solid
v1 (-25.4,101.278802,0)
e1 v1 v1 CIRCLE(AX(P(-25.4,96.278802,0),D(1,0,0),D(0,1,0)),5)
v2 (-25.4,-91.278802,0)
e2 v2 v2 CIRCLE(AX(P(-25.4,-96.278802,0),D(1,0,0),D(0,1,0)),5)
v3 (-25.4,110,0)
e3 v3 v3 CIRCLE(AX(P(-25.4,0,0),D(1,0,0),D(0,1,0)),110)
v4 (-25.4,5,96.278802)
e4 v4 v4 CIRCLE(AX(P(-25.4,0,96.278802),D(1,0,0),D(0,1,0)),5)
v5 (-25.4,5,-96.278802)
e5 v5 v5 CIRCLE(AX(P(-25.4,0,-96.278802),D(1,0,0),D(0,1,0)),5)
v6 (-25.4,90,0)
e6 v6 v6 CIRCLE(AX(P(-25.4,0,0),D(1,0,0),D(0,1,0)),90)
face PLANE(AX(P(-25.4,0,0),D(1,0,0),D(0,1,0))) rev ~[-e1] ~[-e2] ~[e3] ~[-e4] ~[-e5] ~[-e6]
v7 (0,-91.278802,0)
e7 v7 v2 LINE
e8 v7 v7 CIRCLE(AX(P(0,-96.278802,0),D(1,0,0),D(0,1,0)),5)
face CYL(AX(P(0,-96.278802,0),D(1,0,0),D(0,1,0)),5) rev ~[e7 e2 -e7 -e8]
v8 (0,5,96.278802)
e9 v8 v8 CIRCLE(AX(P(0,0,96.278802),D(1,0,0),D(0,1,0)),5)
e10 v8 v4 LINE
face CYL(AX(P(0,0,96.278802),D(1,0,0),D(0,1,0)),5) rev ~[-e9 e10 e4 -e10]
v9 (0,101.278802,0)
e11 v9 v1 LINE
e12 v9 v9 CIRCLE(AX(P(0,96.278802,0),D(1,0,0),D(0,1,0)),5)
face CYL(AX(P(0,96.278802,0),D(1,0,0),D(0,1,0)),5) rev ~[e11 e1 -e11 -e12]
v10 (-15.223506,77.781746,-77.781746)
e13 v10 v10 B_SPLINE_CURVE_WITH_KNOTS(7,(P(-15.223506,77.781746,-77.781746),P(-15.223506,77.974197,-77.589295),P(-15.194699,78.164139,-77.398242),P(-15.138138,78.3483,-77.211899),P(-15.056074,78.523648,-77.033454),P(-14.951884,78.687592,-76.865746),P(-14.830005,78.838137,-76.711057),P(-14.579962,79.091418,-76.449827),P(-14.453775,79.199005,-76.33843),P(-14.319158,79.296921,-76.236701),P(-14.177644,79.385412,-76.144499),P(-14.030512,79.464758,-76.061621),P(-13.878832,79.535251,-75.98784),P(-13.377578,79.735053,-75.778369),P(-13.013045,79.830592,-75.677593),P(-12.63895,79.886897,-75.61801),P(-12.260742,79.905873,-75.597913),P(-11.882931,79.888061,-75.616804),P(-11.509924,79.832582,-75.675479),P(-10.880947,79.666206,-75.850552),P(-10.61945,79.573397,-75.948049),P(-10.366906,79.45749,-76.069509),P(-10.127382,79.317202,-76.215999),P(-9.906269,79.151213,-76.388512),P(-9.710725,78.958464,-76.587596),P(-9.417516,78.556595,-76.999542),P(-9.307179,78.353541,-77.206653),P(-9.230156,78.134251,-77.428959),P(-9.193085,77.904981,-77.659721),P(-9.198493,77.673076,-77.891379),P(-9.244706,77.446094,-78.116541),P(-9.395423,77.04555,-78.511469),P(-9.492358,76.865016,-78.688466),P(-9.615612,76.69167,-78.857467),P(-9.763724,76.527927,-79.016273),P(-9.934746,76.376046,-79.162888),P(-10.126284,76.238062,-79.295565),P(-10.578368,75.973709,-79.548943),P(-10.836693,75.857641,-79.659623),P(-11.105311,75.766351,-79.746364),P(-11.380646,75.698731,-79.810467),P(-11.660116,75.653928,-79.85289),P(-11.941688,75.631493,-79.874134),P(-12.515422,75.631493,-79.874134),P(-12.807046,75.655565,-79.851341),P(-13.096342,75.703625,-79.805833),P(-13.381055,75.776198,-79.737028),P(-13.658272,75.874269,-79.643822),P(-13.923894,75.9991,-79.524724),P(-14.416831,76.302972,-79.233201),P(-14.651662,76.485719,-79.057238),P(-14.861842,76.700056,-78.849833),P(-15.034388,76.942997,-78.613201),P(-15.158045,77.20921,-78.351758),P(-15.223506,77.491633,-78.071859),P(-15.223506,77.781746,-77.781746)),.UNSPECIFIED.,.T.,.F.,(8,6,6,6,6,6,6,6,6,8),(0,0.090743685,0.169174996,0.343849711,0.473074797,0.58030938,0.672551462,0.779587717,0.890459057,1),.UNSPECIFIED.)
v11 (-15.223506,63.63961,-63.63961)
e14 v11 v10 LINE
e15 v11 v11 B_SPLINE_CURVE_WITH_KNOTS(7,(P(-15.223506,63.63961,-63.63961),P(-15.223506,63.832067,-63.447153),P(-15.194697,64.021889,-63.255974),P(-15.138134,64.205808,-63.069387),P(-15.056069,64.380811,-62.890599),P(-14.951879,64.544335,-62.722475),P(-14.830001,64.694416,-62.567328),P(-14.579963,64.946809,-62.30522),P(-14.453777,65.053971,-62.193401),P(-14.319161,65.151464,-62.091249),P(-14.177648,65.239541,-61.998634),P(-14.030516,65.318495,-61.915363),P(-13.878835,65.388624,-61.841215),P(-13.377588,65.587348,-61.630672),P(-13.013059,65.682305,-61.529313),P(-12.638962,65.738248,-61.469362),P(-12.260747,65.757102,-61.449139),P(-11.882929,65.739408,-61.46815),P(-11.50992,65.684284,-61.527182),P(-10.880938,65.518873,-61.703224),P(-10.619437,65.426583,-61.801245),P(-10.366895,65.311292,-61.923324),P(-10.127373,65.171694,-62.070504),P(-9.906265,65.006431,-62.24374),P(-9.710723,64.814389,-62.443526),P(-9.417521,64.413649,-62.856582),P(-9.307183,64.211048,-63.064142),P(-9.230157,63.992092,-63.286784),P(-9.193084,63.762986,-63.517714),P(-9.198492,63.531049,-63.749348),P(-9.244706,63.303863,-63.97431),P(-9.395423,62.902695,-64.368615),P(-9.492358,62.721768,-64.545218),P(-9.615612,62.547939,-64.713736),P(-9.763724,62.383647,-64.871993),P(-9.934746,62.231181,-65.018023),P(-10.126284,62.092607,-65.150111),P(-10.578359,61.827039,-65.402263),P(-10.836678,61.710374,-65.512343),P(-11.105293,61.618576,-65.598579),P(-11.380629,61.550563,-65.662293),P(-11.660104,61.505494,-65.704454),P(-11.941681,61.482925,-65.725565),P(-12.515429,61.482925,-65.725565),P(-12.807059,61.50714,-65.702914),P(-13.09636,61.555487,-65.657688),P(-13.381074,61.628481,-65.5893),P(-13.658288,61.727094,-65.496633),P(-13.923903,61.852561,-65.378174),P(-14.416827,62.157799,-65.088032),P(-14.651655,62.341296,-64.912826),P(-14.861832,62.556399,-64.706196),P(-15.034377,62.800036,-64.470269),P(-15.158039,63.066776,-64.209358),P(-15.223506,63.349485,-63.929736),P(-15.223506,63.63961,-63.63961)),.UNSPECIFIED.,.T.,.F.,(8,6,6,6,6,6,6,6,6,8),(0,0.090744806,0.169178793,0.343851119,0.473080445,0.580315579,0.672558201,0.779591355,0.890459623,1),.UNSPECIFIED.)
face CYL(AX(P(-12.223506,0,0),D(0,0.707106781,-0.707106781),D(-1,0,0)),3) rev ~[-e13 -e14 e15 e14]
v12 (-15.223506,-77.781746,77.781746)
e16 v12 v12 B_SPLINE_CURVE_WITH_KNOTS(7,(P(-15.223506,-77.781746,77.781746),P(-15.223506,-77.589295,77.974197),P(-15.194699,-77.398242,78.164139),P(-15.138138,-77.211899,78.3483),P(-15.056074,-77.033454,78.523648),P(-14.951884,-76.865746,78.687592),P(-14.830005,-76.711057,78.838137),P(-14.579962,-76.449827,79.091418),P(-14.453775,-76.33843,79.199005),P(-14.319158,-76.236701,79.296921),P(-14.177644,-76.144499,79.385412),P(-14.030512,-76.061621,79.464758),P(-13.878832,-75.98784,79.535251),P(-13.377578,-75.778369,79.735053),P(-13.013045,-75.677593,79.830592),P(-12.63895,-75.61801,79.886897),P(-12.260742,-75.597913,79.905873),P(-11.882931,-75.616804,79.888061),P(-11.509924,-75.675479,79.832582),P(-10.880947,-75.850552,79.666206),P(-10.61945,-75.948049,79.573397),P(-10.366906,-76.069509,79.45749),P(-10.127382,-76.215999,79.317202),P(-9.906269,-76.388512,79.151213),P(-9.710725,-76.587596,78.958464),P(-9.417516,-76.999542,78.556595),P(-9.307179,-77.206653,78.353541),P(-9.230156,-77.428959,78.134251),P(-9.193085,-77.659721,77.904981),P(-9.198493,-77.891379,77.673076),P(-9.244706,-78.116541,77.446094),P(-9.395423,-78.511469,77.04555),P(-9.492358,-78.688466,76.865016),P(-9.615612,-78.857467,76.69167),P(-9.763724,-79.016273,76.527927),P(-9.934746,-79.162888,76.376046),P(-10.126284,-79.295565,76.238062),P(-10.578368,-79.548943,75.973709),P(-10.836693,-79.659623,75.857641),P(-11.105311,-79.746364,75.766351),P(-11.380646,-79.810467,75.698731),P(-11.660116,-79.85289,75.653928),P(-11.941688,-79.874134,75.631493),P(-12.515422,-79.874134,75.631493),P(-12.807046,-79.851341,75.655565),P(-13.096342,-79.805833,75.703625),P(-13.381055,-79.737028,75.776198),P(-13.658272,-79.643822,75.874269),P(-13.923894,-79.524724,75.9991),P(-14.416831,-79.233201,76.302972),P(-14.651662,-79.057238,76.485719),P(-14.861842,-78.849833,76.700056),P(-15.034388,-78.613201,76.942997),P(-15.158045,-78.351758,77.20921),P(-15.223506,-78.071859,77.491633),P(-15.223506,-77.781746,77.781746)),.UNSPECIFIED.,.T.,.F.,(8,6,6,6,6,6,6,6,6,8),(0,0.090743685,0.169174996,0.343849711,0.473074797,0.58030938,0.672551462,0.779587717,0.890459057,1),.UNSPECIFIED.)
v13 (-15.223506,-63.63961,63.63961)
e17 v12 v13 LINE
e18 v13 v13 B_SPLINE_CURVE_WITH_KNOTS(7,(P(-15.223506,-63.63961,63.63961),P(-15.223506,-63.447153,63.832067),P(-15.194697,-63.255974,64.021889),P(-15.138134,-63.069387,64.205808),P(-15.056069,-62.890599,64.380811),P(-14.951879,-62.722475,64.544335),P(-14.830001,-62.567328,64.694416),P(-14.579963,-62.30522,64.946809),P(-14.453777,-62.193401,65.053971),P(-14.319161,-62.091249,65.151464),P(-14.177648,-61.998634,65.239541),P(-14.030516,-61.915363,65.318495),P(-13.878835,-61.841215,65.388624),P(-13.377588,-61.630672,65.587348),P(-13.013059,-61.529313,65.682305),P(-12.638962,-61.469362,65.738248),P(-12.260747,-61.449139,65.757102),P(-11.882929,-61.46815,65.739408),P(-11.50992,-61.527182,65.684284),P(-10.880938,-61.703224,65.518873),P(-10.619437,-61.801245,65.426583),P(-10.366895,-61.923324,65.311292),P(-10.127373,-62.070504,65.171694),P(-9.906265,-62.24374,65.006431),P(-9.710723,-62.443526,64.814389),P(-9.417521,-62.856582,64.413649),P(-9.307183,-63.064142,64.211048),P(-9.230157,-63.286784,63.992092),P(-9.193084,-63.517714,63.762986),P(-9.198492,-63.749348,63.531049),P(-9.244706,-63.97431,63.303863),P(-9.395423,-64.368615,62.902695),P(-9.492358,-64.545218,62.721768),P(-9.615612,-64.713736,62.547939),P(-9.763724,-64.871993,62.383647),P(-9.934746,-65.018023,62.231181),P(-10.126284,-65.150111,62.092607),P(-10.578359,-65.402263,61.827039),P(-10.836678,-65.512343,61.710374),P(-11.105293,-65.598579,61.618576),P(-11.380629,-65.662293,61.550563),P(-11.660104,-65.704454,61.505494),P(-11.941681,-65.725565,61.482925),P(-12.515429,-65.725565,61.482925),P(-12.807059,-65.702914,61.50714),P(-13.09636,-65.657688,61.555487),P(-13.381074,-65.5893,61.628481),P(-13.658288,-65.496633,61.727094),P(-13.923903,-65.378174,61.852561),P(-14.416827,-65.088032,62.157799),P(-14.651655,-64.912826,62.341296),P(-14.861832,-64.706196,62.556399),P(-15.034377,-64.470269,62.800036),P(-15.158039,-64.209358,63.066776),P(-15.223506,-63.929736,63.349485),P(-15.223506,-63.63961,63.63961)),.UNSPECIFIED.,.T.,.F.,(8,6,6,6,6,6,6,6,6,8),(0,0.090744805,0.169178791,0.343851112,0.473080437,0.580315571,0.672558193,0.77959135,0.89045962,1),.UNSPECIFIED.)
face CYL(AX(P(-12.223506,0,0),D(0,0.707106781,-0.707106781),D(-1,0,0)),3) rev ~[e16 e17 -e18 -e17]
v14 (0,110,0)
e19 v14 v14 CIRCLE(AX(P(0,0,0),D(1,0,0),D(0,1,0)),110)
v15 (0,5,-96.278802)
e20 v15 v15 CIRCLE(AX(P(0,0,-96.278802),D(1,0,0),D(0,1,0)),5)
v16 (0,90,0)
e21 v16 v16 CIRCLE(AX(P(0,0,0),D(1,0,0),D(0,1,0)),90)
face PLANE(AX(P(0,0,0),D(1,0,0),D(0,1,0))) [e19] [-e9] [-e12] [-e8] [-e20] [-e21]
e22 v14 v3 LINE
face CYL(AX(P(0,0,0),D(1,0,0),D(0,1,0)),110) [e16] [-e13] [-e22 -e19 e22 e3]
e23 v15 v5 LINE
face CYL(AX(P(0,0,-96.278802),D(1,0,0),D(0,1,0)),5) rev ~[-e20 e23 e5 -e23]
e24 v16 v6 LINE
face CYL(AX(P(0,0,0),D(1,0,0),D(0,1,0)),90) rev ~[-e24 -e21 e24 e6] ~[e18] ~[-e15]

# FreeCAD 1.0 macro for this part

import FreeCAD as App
import Part
import Sketcher

V = App.Vector

doc = App.newDocument("Part")
body = doc.addObject("PartDesign::Body", "Body")

sketch1 = body.newObject("Sketcher::SketchObject", "Sketch")
sketch1.AttachmentSupport = (doc.getObject("YZ_Plane"), [""])
sketch1.MapMode = "FlatFace"
sketch1.addGeometry([
    Part.Circle(V(0, 0, 0), V(0, 0, 1), 110),
    Part.Circle(V(0, 0, 0), V(0, 0, 1), 90),
], False)
sketch1.addConstraint([
    Sketcher.Constraint("Coincident", 0, 3, -1, 1),
    Sketcher.Constraint("Coincident", 1, 3, -1, 1),
    Sketcher.Constraint("Diameter", 0, 220.0),
    Sketcher.Constraint("Diameter", 1, 180.0),
])
pad1 = body.newObject("PartDesign::Pad", "Pad")
pad1.Profile = sketch1
pad1.Length = 25.4
pad1.Reversed = True

sketch2 = body.newObject("Sketcher::SketchObject", "Sketch001")
sketch2.Placement = App.Placement(V(0, 0, 0), App.Rotation(V(-1, 0, 0), V(0, 0.707106781, 0.707106781), V(0, 0.707106781, -0.707106781), "ZXY"))
sketch2.addGeometry(Part.Circle(V(12.223506, 0, 0), V(0, 0, 1), 3), False)
sketch2.addConstraint([
    Sketcher.Constraint("PointOnObject", 0, 3, -1),
    Sketcher.Constraint("Diameter", 0, 6.0),
    Sketcher.Constraint("DistanceX", -1, 1, 0, 3, 12.223506),
])
pocket1 = body.newObject("PartDesign::Pocket", "Pocket")
pocket1.Profile = sketch2
pocket1.Length = 221
pocket1.Midplane = True

sketch3 = body.newObject("Sketcher::SketchObject", "Sketch002")
sketch3.AttachmentSupport = (doc.getObject("YZ_Plane"), [""])
sketch3.MapMode = "FlatFace"
sketch3.addGeometry([
    Part.Circle(V(0, 96.278802, 0), V(0, 0, 1), 5),
    Part.Circle(V(-96.278802, 0, 0), V(0, 0, 1), 5),
    Part.Circle(V(0, -96.278802, 0), V(0, 0, 1), 5),
    Part.Circle(V(96.278802, 0, 0), V(0, 0, 1), 5),
], False)
sketch3.addConstraint([
    Sketcher.Constraint("Equal", 0, 1),
    Sketcher.Constraint("Equal", 1, 2),
    Sketcher.Constraint("Equal", 2, 3),
    Sketcher.Constraint("Symmetric", 0, 3, 2, 3, -1, 1),
    Sketcher.Constraint("Symmetric", 1, 3, 3, 3, -1, 1),
    Sketcher.Constraint("PointOnObject", 0, 3, -2),
    Sketcher.Constraint("PointOnObject", 1, 3, -1),
    Sketcher.Constraint("Diameter", 0, 10.0),
    Sketcher.Constraint("DistanceY", -1, 1, 0, 3, 96.278802),
    Sketcher.Constraint("DistanceX", 1, 3, -1, 1, 96.278802),
])
pocket2 = body.newObject("PartDesign::Pocket", "Pocket001")
pocket2.Profile = sketch3
pocket2.Length = 25.5

doc.recompute()
